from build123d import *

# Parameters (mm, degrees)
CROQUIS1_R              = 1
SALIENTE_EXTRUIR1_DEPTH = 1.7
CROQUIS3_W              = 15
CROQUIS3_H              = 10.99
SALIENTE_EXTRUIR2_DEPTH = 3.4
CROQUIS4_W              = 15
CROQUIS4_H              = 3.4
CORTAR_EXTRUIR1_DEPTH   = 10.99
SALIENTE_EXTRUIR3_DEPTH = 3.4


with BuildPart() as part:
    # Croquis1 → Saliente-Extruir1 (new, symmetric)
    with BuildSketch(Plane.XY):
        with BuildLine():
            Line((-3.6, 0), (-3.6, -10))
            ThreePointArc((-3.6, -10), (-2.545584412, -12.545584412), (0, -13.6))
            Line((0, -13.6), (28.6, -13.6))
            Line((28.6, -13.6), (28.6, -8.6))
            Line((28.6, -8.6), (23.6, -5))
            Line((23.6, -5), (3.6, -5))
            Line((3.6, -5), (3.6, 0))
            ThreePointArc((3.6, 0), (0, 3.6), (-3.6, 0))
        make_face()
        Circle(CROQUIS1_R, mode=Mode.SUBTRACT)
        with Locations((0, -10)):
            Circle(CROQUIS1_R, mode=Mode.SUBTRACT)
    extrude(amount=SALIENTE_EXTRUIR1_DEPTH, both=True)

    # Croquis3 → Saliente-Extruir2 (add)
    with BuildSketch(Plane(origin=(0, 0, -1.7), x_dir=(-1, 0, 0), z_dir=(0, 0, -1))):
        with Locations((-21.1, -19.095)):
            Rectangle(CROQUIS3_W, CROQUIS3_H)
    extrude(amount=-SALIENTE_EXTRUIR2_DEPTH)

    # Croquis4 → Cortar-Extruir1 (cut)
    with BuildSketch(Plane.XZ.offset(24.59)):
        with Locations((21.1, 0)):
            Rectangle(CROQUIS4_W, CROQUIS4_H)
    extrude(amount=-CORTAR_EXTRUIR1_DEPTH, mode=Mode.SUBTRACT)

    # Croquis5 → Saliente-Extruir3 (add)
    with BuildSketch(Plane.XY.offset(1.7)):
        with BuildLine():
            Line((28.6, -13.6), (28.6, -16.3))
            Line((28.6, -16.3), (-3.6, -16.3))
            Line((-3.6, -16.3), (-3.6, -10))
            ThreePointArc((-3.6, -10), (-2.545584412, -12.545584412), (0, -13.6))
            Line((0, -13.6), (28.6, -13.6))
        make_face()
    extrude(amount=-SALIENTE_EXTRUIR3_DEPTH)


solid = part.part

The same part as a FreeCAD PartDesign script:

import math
import FreeCAD as App
import Part
import Sketcher
Q = App.Units.Quantity


def add_polygon(sketch, points):
    """Adds a closed chain of lines whose ends are joined by coincident constraints."""
    first, n = sketch.GeometryCount, len(points)
    for a, b in zip(points, points[1:] + points[:1]):
        sketch.addGeometry(Part.LineSegment(App.Vector(*a, 0), App.Vector(*b, 0)), False)
    for i in range(n):
        sketch.addConstraint(Sketcher.Constraint("Coincident", first + i, 2, first + (i + 1) % n, 1))

doc = App.newDocument("Part")
params = doc.addObject("Spreadsheet::Sheet", "Params")
for row, (alias, value) in enumerate([
    ("sketch1_diameter", "2 mm"),
    ("sketch1_radius", "3.6 mm"),
    ("sketch1_width", "20 mm"),
    ("sketch1_height", "10 mm"),
    ("sketch1_height2", "5 mm"),
    ("pad1_length", "3.4 mm"),
    ("sketch2_width", "15 mm"),
    ("sketch2_height", "10.99 mm"),
    ("pad2_length", "3.4 mm"),
    ("sketch3_width", "15 mm"),
    ("sketch3_height", "3.4 mm"),
    ("pocket1_length", "10.99 mm"),
    ("sketch4_radius", "3.6 mm"),
    ("sketch4_width", "28.6 mm"),
    ("sketch4_height", "2.7 mm"),
    ("pad3_length", "3.4 mm"),
], start=1):
    params.set(f"A{row}", alias)
    params.set(f"B{row}", "=" + value)
    params.setAlias(f"B{row}", alias)

body = doc.addObject("PartDesign::Body", "Body")

sketch1 = body.newObject("Sketcher::SketchObject", "Sketch")
sketch1.AttachmentSupport = (doc.getObject("XY_Plane"), [""])
sketch1.MapMode = "FlatFace"
sketch1.addGeometry([
    Part.LineSegment(App.Vector(-3.6, 0, 0), App.Vector(-3.6, -10, 0)),
    Part.ArcOfCircle(Part.Circle(App.Vector(0, -10, 0), App.Vector(0, 0, 1), 3.6), math.radians(-180), math.radians(-90)),
    Part.LineSegment(App.Vector(0, -13.6, 0), App.Vector(28.6, -13.6, 0)),
    Part.LineSegment(App.Vector(28.6, -13.6, 0), App.Vector(28.6, -8.6, 0)),
    Part.LineSegment(App.Vector(28.6, -8.6, 0), App.Vector(23.6, -5, 0)),
    Part.LineSegment(App.Vector(23.6, -5, 0), App.Vector(3.6, -5, 0)),
    Part.LineSegment(App.Vector(3.6, -5, 0), App.Vector(3.6, 0, 0)),
    Part.ArcOfCircle(Part.Circle(App.Vector(0, 0, 0), App.Vector(0, 0, 1), 3.6), math.radians(0), math.radians(180)),
    Part.Circle(App.Vector(0, -10, 0), App.Vector(0, 0, 1), 1),
    Part.Circle(App.Vector(0, 0, 0), App.Vector(0, 0, 1), 1),
], False)
sketch1.addConstraint([
    Sketcher.Constraint("Tangent", 0, 2, 1, 1),
    Sketcher.Constraint("Tangent", 1, 2, 2, 1),
    Sketcher.Constraint("Coincident", 2, 2, 3, 1),
    Sketcher.Constraint("Coincident", 3, 2, 4, 1),
    Sketcher.Constraint("Coincident", 4, 2, 5, 1),
    Sketcher.Constraint("Coincident", 5, 2, 6, 1),
    Sketcher.Constraint("Tangent", 6, 2, 7, 1),
    Sketcher.Constraint("Tangent", 7, 2, 0, 1),
    Sketcher.Constraint("Vertical", 0),
    Sketcher.Constraint("Horizontal", 2),
    Sketcher.Constraint("Vertical", 3),
    Sketcher.Constraint("Horizontal", 5),
    Sketcher.Constraint("Vertical", 6),
    Sketcher.Constraint("Coincident", 7, 3, -1, 1),
    Sketcher.Constraint("Coincident", 9, 3, -1, 1),
    Sketcher.Constraint("Coincident", 8, 3, 1, 3),
    Sketcher.Constraint("Equal", 1, 7),
    Sketcher.Constraint("Equal", 8, 9),
    Sketcher.Constraint("Equal", 3, 6),
    Sketcher.Constraint("Diameter", 8, Q("2 mm")),
    Sketcher.Constraint("Radius", 1, Q("3.6 mm")),
    Sketcher.Constraint("DistanceX", 5, 2, 5, 1, Q("20 mm")),
    Sketcher.Constraint("DistanceY", 0, 2, 0, 1, Q("10 mm")),
    Sketcher.Constraint("DistanceY", 3, 1, 3, 2, Q("5 mm")),
    Sketcher.Constraint("DistanceX", 2, 1, 2, 2, Q("28.6 mm")),
])
sketch1.setExpression("Constraints[19]", "Params.sketch1_diameter")
sketch1.setExpression("Constraints[20]", "Params.sketch1_radius")
sketch1.setExpression("Constraints[21]", "Params.sketch1_width")
sketch1.setExpression("Constraints[22]", "Params.sketch1_height")
sketch1.setExpression("Constraints[23]", "Params.sketch1_height2")
pad1 = body.newObject("PartDesign::Pad", "Pad")
pad1.Profile = sketch1
pad1.setExpression("Length", "Params.pad1_length")
pad1.Midplane = True

sketch2 = body.newObject("Sketcher::SketchObject", "Sketch001")
sketch2.AttachmentSupport = (doc.getObject("XY_Plane"), [""])
sketch2.MapMode = "FlatFace"
sketch2.AttachmentOffset = App.Placement(App.Vector(0, 0, -1.7), App.Rotation())
add_polygon(sketch2, [(29, -14), (29, -25), (14, -25), (14, -14)])
sketch2.addConstraint([
    Sketcher.Constraint("Vertical", 0),
    Sketcher.Constraint("Horizontal", 1),
    Sketcher.Constraint("Vertical", 2),
    Sketcher.Constraint("Horizontal", 3),
    Sketcher.Constraint("DistanceX", 1, 2, 1, 1, Q("15 mm")),
    Sketcher.Constraint("DistanceY", 0, 2, 0, 1, Q("10.99 mm")),
    Sketcher.Constraint("DistanceX", -1, 1, 0, 2, Q("28.6 mm")),
    Sketcher.Constraint("DistanceY", 2, 2, -1, 1, Q("13.6 mm")),
])
sketch2.setExpression("Constraints[8]", "Params.sketch2_width")
sketch2.setExpression("Constraints[9]", "Params.sketch2_height")
pad2 = body.newObject("PartDesign::Pad", "Pad001")
pad2.Profile = sketch2
pad2.setExpression("Length", "Params.pad2_length")

sketch3 = body.newObject("Sketcher::SketchObject", "Sketch002")
sketch3.AttachmentSupport = (doc.getObject("XZ_Plane"), [""])
sketch3.MapMode = "FlatFace"
sketch3.AttachmentOffset = App.Placement(App.Vector(0, 0, 24.59), App.Rotation())
add_polygon(sketch3, [(13.6, 1.7), (13.6, -1.7), (28.6, -1.7), (28.6, 1.7)])
sketch3.addConstraint([
    Sketcher.Constraint("Vertical", 0),
    Sketcher.Constraint("Horizontal", 1),
    Sketcher.Constraint("Vertical", 2),
    Sketcher.Constraint("Horizontal", 3),
    Sketcher.Constraint("DistanceX", 1, 1, 1, 2, Q("15 mm")),
    Sketcher.Constraint("DistanceY", 0, 2, 0, 1, Q("3.4 mm")),
    Sketcher.Constraint("DistanceX", -1, 1, 0, 2, Q("13.6 mm")),
    Sketcher.Constraint("DistanceY", 0, 2, -1, 1, Q("1.7 mm")),
])
sketch3.setExpression("Constraints[8]", "Params.sketch3_width")
sketch3.setExpression("Constraints[9]", "Params.sketch3_height")
pocket1 = body.newObject("PartDesign::Pocket", "Pocket")
pocket1.Profile = sketch3
pocket1.setExpression("Length", "Params.pocket1_length")

sketch4 = body.newObject("Sketcher::SketchObject", "Sketch003")
sketch4.AttachmentSupport = (doc.getObject("XY_Plane"), [""])
sketch4.MapMode = "FlatFace"
sketch4.AttachmentOffset = App.Placement(App.Vector(0, 0, 1.7), App.Rotation())
sketch4.addGeometry([
    Part.LineSegment(App.Vector(28.6, -16.3, 0), App.Vector(28.6, -13.6, 0)),
    Part.LineSegment(App.Vector(28.6, -13.6, 0), App.Vector(0, -13.6, 0)),
    Part.ArcOfCircle(Part.Circle(App.Vector(0, -10, 0), App.Vector(0, 0, 1), 3.6), math.radians(-180), math.radians(-90)),
    Part.LineSegment(App.Vector(-3.6, -10, 0), App.Vector(-3.6, -16.3, 0)),
    Part.LineSegment(App.Vector(-3.6, -16.3, 0), App.Vector(28.6, -16.3, 0)),
], False)
sketch4.addConstraint([
    Sketcher.Constraint("Coincident", 0, 2, 1, 1),
    Sketcher.Constraint("Tangent", 1, 2, 2, 2),
    Sketcher.Constraint("Tangent", 2, 1, 3, 1),
    Sketcher.Constraint("Coincident", 3, 2, 4, 1),
    Sketcher.Constraint("Coincident", 4, 2, 0, 1),
    Sketcher.Constraint("Vertical", 0),
    Sketcher.Constraint("Horizontal", 1),
    Sketcher.Constraint("Vertical", 3),
    Sketcher.Constraint("Horizontal", 4),
    Sketcher.Constraint("PointOnObject", 2, 3, -2),
    Sketcher.Constraint("Radius", 2, Q("3.6 mm")),
    Sketcher.Constraint("DistanceX", 1, 2, 1, 1, Q("28.6 mm")),
    Sketcher.Constraint("DistanceY", 0, 1, 0, 2, Q("2.7 mm")),
    Sketcher.Constraint("DistanceY", 2, 3, -1, 1, Q("10 mm")),
])
sketch4.setExpression("Constraints[10]", "Params.sketch4_radius")
sketch4.setExpression("Constraints[11]", "Params.sketch4_width")
sketch4.setExpression("Constraints[12]", "Params.sketch4_height")
pad3 = body.newObject("PartDesign::Pad", "Pad002")
pad3.Profile = sketch4
pad3.setExpression("Length", "Params.pad3_length")
pad3.Reversed = True

doc.recompute()
